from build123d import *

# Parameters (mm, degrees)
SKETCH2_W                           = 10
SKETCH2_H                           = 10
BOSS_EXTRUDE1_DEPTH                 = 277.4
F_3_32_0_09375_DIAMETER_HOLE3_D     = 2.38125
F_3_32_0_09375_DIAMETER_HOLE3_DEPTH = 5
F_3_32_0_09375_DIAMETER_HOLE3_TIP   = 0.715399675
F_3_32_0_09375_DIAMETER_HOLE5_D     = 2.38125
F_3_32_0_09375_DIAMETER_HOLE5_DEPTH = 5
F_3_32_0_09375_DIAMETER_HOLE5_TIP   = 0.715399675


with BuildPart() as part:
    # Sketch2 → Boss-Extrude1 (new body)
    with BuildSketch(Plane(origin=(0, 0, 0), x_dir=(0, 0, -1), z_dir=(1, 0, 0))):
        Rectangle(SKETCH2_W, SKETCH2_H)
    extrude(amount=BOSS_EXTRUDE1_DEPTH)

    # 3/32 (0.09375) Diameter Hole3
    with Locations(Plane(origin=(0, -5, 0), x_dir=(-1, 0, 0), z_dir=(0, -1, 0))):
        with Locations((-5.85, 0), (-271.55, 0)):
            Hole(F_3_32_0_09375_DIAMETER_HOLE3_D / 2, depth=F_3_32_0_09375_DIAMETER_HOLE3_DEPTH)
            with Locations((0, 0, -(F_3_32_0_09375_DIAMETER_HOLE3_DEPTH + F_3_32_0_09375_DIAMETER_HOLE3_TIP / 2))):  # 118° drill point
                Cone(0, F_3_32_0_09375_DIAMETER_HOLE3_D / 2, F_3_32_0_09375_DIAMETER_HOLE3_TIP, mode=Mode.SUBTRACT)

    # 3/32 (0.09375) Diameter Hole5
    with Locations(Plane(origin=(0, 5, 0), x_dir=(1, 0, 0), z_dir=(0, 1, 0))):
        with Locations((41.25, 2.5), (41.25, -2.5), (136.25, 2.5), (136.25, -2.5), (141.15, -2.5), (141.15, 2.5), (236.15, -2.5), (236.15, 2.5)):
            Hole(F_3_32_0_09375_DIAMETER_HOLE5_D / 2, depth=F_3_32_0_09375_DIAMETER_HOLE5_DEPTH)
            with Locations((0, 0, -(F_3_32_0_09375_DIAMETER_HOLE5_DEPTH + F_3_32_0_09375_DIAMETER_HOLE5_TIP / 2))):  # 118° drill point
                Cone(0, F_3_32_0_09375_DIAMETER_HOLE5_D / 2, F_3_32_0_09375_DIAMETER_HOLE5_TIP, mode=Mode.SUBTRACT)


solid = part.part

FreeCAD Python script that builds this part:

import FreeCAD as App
import Part
import Sketcher

V = App.Vector
Q = App.Units.Quantity

doc = App.newDocument("Part")
params = doc.addObject("Spreadsheet::Sheet", "Params")
for row, (alias, value) in enumerate([
    ("sketch1_width", "10 mm"),
    ("pad1_length", "277.4 mm"),
    ("hole_diameter", "2.38125 mm"),
    ("hole_depth", "5 mm"),
    ("hole2_diameter", "2.38125 mm"),
    ("hole2_depth", "5 mm"),
], start=1):
    params.set(f"A{row}", alias)
    params.set(f"B{row}", "=" + value)
    params.setAlias(f"B{row}", alias)

body = doc.addObject("PartDesign::Body", "Body")

sketch1 = body.newObject("Sketcher::SketchObject", "Sketch")
sketch1.AttachmentSupport = (doc.getObject("YZ_Plane"), [""])
sketch1.MapMode = "FlatFace"
sketch1.addGeometry(Part.LineSegment(V(5, 5, 0), V(-5, 5, 0)), False)
sketch1.addGeometry(Part.LineSegment(V(-5, 5, 0), V(-5, -5, 0)), False)
sketch1.addGeometry(Part.LineSegment(V(-5, -5, 0), V(5, -5, 0)), False)
sketch1.addGeometry(Part.LineSegment(V(5, -5, 0), V(5, 5, 0)), False)
sketch1.addConstraint(Sketcher.Constraint("Coincident", 0, 2, 1, 1))
sketch1.addConstraint(Sketcher.Constraint("Coincident", 1, 2, 2, 1))
sketch1.addConstraint(Sketcher.Constraint("Coincident", 2, 2, 3, 1))
sketch1.addConstraint(Sketcher.Constraint("Coincident", 3, 2, 0, 1))
sketch1.addConstraint(Sketcher.Constraint("Horizontal", 0))
sketch1.addConstraint(Sketcher.Constraint("Vertical", 1))
sketch1.addConstraint(Sketcher.Constraint("Horizontal", 2))
sketch1.addConstraint(Sketcher.Constraint("Vertical", 3))
sketch1.addConstraint(Sketcher.Constraint("Symmetric", 0, 2, 2, 2, -1, 1))
sketch1.addConstraint(Sketcher.Constraint("Equal", 2, 1))
sketch1.addConstraint(Sketcher.Constraint("DistanceX", 0, 2, 0, 1, Q("10 mm")))
sketch1.setExpression("Constraints[10]", "Params.sketch1_width")
pad1 = body.newObject("PartDesign::Pad", "Pad")
pad1.Profile = sketch1
pad1.setExpression("Length", "Params.pad1_length")

sketch2 = body.newObject("Sketcher::SketchObject", "Sketch001")
sketch2.AttachmentSupport = (doc.getObject("XZ_Plane"), [""])
sketch2.MapMode = "FlatFace"
sketch2.AttachmentOffset = App.Placement(V(0, 0, 5), App.Rotation())
sketch2.addGeometry(Part.Circle(V(5.8, 0, 0), V(0, 0, 1), 1.2), False)
sketch2.addGeometry(Part.Circle(V(271.6, 0, 0), V(0, 0, 1), 1.2), False)
sketch2.addConstraint(Sketcher.Constraint("Equal", 0, 1))
sketch2.addConstraint(Sketcher.Constraint("PointOnObject", 0, 3, -1))
sketch2.addConstraint(Sketcher.Constraint("PointOnObject", 1, 3, -1))
sketch2.addConstraint(Sketcher.Constraint("DistanceX", 0, 3, 1, 3, Q("265.7 mm")))
sketch2.addConstraint(Sketcher.Constraint("Diameter", 0, Q("2.38125 mm")))
sketch2.addConstraint(Sketcher.Constraint("DistanceX", -1, 1, 0, 3, Q("5.85 mm")))
doc.recompute()
hole = body.newObject("PartDesign::Hole", "Hole")
hole.Profile = sketch2
hole.ThreadType = "None"
hole.setExpression("Diameter", "Params.hole_diameter")
hole.DepthType = "Dimension"
hole.setExpression("Depth", "Params.hole_depth")
hole.DrillPoint = "Angled"
hole.DrillPointAngle = 118

sketch3 = body.newObject("Sketcher::SketchObject", "Sketch002")
sketch3.AttachmentSupport = (doc.getObject("XZ_Plane"), [""])
sketch3.MapMode = "FlatFace"
sketch3.AttachmentOffset = App.Placement(V(0, 0, -5), App.Rotation())
sketch3.addGeometry(Part.Circle(V(41.2, -2.5, 0), V(0, 0, 1), 1.2), False)
sketch3.addGeometry(Part.Circle(V(41.2, 2.5, 0), V(0, 0, 1), 1.2), False)
sketch3.addGeometry(Part.Circle(V(136.2, -2.5, 0), V(0, 0, 1), 1.2), False)
sketch3.addGeometry(Part.Circle(V(136.2, 2.5, 0), V(0, 0, 1), 1.2), False)
sketch3.addGeometry(Part.Circle(V(141.2, 2.5, 0), V(0, 0, 1), 1.2), False)
sketch3.addGeometry(Part.Circle(V(141.2, -2.5, 0), V(0, 0, 1), 1.2), False)
sketch3.addGeometry(Part.Circle(V(236.2, 2.5, 0), V(0, 0, 1), 1.2), False)
sketch3.addGeometry(Part.Circle(V(236.2, -2.5, 0), V(0, 0, 1), 1.2), False)
sketch3.addConstraint(Sketcher.Constraint("Equal", 0, 1))
sketch3.addConstraint(Sketcher.Constraint("Equal", 1, 2))
sketch3.addConstraint(Sketcher.Constraint("Equal", 2, 3))
sketch3.addConstraint(Sketcher.Constraint("Equal", 3, 4))
sketch3.addConstraint(Sketcher.Constraint("Equal", 4, 5))
sketch3.addConstraint(Sketcher.Constraint("Equal", 5, 6))
sketch3.addConstraint(Sketcher.Constraint("Equal", 6, 7))
sketch3.addConstraint(Sketcher.Constraint("Symmetric", 0, 3, 1, 3, -1))
sketch3.addConstraint(Sketcher.Constraint("Symmetric", 2, 3, 3, 3, -1))
sketch3.addConstraint(Sketcher.Constraint("Symmetric", 4, 3, 5, 3, -1))
sketch3.addConstraint(Sketcher.Constraint("Symmetric", 6, 3, 7, 3, -1))
sketch3.addConstraint(Sketcher.Constraint("Horizontal", 0, 3, 2, 3))
sketch3.addConstraint(Sketcher.Constraint("Horizontal", 3, 3, 4, 3))
sketch3.addConstraint(Sketcher.Constraint("Horizontal", 4, 3, 6, 3))
sketch3.addConstraint(Sketcher.Constraint("DistanceY", 0, 3, 1, 3, Q("5 mm")))
sketch3.addConstraint(Sketcher.Constraint("DistanceX", 0, 3, 2, 3, Q("95 mm")))
sketch3.addConstraint(Sketcher.Constraint("DistanceX", 4, 3, 6, 3, Q("95 mm")))
sketch3.addConstraint(Sketcher.Constraint("DistanceX", 3, 3, 4, 3, Q("4.9 mm")))
sketch3.addConstraint(Sketcher.Constraint("Diameter", 0, Q("2.38125 mm")))
sketch3.addConstraint(Sketcher.Constraint("DistanceX", -1, 1, 0, 3, Q("41.25 mm")))
doc.recompute()
hole2 = body.newObject("PartDesign::Hole", "Hole001")
hole2.Profile = sketch3
hole2.ThreadType = "None"
hole2.setExpression("Diameter", "Params.hole2_diameter")
hole2.DepthType = "Dimension"
hole2.setExpression("Depth", "Params.hole2_depth")
hole2.DrillPoint = "Angled"
hole2.DrillPointAngle = 118
hole2.Reversed = True

doc.recompute()
